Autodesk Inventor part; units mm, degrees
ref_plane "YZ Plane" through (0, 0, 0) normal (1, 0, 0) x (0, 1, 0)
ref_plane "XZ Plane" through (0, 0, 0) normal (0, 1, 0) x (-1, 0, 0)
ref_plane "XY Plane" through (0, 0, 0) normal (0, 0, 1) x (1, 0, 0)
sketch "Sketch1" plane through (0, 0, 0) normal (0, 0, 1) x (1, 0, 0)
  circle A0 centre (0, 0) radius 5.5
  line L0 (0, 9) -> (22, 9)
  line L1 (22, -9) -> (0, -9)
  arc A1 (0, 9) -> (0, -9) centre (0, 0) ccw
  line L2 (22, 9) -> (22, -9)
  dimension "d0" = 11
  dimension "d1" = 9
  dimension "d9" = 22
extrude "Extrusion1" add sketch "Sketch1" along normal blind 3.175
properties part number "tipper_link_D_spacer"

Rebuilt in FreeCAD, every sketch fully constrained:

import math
import FreeCAD as App
import Part
import Sketcher
from FreeCAD import Vector

doc = App.newDocument("Part")
body = doc.addObject("PartDesign::Body", "Body")

sketch1 = doc.addObject("Sketcher::SketchObject", "Sketch")
body.addObject(sketch1)
sketch1.AttachmentSupport = (doc.XY_Plane, [""])
sketch1.MapMode = "FlatFace"
sketch1.addGeometry([
    Part.LineSegment(Vector(22, 9, 0), Vector(0, 9, 0)),
    Part.ArcOfCircle(Part.Circle(Vector(0, 0, 0), Vector(0, 0, 1), 9), math.radians(90), math.radians(270)),
    Part.LineSegment(Vector(0, -9, 0), Vector(22, -9, 0)),
    Part.LineSegment(Vector(22, -9, 0), Vector(22, 9, 0)),
    Part.Circle(Vector(0, 0, 0), Vector(0, 0, 1), 6),
], False)
sketch1.addConstraint([
    Sketcher.Constraint("Tangent", 0, 2, 1, 1),
    Sketcher.Constraint("Tangent", 1, 2, 2, 1),
    Sketcher.Constraint("Coincident", 2, 2, 3, 1),
    Sketcher.Constraint("Coincident", 3, 2, 0, 1),
    Sketcher.Constraint("Horizontal", 0),
    Sketcher.Constraint("Horizontal", 2),
    Sketcher.Constraint("Vertical", 3),
    Sketcher.Constraint("Coincident", 1, 3, -1, 1),
    Sketcher.Constraint("Coincident", 4, 3, -1, 1),
    Sketcher.Constraint("Diameter", 4, 11.0),
    Sketcher.Constraint("Radius", 1, 9.0),
    Sketcher.Constraint("DistanceX", 0, 2, 0, 1, 22.0),
])
pad1 = doc.addObject("PartDesign::Pad", "Pad")
body.addObject(pad1)
pad1.Profile = sketch1
pad1.Length = 3.175

doc.recompute()
